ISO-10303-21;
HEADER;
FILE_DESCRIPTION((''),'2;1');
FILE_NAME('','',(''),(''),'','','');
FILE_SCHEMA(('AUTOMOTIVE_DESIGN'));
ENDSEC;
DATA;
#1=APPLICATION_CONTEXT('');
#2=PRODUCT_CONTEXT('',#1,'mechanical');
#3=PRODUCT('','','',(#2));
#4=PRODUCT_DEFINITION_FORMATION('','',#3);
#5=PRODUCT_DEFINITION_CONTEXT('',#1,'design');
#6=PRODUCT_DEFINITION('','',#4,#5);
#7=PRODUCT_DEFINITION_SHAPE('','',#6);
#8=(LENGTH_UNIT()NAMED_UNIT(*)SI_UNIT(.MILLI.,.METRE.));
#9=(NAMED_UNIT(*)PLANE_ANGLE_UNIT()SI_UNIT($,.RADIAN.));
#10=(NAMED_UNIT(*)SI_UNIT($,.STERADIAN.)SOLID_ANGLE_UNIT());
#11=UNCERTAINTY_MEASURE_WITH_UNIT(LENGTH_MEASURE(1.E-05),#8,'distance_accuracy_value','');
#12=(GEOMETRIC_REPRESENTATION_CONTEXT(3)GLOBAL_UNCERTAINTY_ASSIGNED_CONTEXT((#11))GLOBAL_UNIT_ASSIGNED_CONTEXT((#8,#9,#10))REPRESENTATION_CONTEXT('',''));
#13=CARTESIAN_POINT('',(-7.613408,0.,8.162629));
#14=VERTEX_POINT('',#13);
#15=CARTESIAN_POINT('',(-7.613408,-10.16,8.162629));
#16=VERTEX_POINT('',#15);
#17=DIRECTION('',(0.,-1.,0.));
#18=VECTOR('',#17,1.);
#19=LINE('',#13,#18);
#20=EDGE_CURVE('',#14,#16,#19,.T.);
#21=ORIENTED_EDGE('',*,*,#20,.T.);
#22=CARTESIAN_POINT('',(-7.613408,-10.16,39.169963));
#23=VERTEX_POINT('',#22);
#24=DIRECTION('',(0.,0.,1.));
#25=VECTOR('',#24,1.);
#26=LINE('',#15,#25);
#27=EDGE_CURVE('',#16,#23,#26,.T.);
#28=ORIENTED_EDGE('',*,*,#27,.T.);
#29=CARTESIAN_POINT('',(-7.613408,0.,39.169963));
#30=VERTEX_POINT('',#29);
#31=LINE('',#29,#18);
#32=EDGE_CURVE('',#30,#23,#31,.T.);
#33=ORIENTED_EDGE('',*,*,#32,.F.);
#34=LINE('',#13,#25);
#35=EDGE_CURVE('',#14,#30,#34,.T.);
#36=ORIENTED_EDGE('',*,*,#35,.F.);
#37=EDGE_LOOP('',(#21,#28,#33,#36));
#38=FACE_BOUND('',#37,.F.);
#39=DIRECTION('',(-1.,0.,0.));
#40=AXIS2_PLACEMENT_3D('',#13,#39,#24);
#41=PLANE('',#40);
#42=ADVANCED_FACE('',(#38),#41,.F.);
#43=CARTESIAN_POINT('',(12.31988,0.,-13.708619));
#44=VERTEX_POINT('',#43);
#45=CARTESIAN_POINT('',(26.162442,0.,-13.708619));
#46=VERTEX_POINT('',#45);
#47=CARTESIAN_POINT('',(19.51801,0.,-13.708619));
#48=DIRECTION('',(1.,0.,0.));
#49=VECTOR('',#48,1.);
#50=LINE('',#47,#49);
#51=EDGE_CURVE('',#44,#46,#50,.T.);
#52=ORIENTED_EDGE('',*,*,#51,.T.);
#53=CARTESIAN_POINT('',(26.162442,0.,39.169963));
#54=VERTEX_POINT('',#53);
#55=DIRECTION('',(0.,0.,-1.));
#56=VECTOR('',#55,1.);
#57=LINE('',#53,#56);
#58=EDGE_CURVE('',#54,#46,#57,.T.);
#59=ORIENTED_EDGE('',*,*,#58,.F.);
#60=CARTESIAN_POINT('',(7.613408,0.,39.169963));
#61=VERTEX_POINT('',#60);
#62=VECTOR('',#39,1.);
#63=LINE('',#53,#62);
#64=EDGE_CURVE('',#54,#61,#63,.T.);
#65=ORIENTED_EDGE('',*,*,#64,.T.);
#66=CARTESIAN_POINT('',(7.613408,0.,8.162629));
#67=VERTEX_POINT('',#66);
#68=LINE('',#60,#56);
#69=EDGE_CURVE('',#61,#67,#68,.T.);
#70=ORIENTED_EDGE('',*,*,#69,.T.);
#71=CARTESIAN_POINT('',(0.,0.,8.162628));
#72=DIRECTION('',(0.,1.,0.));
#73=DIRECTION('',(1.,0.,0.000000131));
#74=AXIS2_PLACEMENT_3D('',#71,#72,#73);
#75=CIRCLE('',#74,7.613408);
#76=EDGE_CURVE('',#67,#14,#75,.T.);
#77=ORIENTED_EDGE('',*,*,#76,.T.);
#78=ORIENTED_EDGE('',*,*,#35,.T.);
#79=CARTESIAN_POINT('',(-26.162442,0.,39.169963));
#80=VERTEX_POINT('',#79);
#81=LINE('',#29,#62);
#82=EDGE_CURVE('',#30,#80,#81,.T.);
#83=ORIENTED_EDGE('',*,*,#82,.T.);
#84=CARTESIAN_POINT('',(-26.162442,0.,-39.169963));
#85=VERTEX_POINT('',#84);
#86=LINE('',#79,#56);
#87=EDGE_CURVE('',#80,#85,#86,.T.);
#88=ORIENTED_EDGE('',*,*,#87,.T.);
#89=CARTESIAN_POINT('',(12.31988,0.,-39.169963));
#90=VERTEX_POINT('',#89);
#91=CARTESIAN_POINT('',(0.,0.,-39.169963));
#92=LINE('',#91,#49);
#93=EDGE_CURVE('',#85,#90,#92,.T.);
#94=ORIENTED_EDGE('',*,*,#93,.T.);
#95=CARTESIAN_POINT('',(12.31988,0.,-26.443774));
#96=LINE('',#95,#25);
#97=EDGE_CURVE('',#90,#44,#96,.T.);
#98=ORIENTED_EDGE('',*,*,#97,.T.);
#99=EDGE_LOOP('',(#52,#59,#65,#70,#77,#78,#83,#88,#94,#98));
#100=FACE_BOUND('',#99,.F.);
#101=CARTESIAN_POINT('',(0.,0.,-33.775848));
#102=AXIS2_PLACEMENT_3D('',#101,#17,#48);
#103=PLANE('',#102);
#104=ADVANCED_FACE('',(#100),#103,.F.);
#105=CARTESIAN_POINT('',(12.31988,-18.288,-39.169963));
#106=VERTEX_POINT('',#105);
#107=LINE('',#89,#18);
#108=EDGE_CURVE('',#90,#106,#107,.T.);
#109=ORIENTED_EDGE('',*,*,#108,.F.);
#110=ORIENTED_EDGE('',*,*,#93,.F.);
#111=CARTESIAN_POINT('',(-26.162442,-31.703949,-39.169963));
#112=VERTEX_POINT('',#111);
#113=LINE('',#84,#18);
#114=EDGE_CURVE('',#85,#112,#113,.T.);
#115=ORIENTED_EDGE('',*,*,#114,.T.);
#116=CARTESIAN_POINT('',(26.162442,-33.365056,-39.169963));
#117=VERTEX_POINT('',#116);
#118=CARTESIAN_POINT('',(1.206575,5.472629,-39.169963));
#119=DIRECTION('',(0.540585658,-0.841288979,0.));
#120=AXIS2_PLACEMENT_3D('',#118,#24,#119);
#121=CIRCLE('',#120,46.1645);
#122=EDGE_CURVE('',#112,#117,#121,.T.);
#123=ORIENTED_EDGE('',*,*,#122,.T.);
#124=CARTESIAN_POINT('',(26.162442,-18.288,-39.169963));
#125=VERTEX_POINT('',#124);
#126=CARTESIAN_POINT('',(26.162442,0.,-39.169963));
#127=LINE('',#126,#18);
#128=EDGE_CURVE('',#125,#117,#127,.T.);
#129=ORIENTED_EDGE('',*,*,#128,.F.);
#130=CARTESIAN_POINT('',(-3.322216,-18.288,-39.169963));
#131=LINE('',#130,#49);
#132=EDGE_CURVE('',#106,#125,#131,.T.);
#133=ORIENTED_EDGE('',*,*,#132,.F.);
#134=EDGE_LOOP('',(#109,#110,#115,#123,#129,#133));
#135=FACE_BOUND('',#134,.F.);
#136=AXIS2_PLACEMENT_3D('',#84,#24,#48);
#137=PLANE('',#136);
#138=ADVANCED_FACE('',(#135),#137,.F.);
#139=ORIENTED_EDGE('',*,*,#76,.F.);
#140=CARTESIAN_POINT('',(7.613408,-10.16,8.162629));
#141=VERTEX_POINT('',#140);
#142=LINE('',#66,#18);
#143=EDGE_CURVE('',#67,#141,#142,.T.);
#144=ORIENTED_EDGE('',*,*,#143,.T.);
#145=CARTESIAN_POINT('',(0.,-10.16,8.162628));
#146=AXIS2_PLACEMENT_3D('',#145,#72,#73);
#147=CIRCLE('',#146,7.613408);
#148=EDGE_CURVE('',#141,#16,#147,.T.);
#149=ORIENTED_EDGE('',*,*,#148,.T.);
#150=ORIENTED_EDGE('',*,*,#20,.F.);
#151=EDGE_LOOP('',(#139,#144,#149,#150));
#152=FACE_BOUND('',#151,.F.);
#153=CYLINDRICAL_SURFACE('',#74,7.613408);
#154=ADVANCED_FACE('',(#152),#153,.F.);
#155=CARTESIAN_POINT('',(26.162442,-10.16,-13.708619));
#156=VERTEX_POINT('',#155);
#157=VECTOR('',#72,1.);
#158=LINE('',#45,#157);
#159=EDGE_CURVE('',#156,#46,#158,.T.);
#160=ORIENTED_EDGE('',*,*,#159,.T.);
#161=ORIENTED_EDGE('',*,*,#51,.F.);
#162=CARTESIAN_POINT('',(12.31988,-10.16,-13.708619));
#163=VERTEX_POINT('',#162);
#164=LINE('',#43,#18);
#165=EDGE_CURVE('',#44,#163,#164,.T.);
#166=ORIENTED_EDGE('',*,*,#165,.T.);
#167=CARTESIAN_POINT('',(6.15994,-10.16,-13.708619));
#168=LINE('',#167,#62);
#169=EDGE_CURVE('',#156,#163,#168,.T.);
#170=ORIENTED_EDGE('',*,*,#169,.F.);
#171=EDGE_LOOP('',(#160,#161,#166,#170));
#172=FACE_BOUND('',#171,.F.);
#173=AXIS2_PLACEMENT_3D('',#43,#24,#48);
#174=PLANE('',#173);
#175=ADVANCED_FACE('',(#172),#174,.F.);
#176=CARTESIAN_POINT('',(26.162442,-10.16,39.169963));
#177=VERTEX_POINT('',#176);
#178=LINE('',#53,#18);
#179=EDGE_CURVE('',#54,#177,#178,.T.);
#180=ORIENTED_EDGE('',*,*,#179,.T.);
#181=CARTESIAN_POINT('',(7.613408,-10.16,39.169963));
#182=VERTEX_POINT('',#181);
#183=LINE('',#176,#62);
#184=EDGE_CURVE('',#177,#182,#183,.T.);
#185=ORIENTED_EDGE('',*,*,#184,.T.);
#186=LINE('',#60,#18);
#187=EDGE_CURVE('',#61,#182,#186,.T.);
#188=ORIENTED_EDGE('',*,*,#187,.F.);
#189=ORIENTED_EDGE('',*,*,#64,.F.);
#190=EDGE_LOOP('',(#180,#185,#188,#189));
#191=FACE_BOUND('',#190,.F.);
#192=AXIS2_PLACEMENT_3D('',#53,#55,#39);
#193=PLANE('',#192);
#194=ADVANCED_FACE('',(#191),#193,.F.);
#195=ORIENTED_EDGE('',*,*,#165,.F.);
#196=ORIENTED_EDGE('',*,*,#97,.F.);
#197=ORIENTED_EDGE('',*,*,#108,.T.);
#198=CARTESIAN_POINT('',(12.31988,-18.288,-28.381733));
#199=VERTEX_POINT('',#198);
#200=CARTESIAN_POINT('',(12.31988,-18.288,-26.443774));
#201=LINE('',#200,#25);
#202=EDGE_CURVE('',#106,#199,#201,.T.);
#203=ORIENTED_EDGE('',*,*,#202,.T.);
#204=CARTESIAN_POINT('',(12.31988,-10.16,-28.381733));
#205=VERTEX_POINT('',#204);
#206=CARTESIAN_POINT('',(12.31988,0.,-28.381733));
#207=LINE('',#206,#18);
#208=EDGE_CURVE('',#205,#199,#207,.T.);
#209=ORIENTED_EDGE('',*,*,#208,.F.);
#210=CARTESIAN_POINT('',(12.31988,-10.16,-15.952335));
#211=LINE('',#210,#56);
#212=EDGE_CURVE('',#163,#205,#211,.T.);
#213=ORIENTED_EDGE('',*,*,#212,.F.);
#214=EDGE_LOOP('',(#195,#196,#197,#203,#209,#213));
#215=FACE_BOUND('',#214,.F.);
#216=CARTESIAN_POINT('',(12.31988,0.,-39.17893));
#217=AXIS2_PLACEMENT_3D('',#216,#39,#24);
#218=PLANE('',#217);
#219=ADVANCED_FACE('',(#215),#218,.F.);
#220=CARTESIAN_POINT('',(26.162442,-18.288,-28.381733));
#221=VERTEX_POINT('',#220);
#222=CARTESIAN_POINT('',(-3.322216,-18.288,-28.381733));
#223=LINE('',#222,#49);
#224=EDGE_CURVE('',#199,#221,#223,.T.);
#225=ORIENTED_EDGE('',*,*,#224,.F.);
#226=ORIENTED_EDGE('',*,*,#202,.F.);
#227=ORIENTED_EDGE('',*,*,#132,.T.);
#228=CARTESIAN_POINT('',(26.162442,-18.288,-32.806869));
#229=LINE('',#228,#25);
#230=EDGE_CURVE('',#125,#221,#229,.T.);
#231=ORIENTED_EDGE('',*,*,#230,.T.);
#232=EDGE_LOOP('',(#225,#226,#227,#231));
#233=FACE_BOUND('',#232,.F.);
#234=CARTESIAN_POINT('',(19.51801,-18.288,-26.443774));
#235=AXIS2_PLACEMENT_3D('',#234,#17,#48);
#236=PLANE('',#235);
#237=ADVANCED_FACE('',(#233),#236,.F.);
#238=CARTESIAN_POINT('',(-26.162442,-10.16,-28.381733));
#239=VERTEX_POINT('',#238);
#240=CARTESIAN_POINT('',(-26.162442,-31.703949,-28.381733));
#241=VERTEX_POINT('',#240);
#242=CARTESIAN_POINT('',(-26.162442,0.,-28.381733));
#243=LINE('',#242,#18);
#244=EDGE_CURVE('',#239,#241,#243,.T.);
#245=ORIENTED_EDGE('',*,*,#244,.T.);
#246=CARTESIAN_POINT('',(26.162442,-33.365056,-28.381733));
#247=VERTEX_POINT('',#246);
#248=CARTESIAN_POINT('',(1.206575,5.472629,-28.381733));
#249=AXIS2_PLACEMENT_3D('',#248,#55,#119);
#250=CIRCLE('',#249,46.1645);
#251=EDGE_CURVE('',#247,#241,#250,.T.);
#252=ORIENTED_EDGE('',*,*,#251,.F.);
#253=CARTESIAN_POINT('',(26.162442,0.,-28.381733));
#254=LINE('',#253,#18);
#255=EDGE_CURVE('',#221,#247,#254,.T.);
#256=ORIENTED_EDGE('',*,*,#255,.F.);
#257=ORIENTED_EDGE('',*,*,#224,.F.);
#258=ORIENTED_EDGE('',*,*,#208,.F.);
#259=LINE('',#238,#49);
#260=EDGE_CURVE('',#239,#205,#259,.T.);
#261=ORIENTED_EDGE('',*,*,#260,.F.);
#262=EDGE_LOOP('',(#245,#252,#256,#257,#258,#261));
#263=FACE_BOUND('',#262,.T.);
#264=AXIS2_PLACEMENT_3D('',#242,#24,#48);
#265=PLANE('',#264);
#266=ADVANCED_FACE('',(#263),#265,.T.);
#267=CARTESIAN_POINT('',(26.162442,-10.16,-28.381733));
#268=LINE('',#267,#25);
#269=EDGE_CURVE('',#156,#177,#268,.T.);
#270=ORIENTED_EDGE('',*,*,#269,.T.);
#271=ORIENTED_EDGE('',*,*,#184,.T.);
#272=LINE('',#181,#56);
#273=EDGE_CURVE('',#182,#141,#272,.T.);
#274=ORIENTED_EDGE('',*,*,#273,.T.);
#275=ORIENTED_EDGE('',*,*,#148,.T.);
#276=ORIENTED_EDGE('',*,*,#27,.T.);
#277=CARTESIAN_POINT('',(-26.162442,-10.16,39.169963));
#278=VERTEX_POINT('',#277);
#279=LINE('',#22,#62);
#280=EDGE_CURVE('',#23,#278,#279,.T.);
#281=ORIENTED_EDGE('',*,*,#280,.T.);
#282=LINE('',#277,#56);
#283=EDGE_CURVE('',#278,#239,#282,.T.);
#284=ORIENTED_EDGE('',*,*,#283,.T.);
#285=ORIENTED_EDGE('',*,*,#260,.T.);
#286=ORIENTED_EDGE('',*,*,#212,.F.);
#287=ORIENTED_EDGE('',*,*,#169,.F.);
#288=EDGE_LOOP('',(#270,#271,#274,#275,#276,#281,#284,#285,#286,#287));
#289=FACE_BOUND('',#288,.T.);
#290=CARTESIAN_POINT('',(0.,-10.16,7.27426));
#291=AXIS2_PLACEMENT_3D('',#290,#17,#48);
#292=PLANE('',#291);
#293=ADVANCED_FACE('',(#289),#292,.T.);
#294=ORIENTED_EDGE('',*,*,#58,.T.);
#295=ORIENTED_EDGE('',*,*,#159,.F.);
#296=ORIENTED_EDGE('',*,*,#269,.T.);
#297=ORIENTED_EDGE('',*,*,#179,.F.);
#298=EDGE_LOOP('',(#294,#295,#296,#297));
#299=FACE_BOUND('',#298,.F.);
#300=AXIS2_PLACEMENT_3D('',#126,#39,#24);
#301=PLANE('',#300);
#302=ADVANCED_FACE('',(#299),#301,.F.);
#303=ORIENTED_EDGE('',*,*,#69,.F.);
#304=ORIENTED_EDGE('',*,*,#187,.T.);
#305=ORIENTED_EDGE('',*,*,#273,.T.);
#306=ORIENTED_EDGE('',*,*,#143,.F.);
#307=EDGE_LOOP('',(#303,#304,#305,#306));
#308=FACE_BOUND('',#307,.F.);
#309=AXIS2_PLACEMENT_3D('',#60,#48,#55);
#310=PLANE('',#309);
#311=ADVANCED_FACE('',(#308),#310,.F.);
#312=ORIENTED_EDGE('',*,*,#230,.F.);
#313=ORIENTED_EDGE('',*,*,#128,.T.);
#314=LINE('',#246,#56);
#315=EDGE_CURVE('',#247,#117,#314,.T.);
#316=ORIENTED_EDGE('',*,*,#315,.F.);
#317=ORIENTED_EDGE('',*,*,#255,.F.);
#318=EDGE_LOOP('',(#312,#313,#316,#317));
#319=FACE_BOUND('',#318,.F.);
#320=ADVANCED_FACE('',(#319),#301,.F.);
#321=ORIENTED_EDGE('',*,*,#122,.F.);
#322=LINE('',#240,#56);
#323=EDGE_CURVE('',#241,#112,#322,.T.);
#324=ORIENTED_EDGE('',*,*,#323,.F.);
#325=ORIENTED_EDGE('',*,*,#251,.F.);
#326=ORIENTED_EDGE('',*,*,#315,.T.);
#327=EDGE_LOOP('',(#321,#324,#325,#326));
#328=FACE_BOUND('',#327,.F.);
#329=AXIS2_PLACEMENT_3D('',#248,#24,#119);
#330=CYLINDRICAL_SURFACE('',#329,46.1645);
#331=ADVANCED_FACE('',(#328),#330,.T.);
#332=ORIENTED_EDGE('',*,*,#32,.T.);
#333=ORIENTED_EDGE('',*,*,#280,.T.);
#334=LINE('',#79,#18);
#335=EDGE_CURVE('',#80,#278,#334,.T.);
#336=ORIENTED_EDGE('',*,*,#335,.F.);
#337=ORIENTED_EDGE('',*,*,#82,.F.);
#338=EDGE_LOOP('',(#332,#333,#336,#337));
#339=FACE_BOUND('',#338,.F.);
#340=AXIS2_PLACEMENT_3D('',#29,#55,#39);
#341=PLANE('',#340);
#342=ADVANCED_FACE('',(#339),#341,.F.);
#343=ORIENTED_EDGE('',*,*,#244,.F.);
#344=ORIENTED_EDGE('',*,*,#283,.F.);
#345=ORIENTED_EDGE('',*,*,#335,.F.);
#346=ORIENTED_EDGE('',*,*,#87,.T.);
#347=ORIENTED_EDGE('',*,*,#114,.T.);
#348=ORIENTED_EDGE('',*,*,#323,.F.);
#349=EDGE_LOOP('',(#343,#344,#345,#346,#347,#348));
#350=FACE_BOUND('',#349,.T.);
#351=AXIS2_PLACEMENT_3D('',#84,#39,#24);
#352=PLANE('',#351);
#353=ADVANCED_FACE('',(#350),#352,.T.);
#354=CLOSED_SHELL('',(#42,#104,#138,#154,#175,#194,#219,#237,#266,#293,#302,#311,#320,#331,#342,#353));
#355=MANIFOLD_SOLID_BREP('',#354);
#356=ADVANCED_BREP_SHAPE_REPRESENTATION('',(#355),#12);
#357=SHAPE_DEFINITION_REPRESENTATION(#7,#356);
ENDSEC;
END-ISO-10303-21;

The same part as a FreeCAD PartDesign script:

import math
import FreeCAD as App
import Part
import Sketcher
from FreeCAD import Vector
Q = App.Units.Quantity

doc = App.newDocument("Part")
body = doc.addObject("PartDesign::Body", "Body")

sketch1 = doc.addObject("Sketcher::SketchObject", "Sketch")
body.addObject(sketch1)
sketch1.AttachmentSupport = (doc.XZ_Plane, [""])
sketch1.MapMode = "FlatFace"
sketch1.addGeometry([
    Part.LineSegment(Vector(26, -28, 0), Vector(26, 39, 0)),
    Part.LineSegment(Vector(26, 39, 0), Vector(8, 39, 0)),
    Part.LineSegment(Vector(8, 39, 0), Vector(8, 8, 0)),
    Part.ArcOfCircle(Part.Circle(Vector(0, 8, 0), Vector(0, 0, 1), 8), math.radians(180), math.radians(360)),
    Part.LineSegment(Vector(-8, 8, 0), Vector(-8, 39, 0)),
    Part.LineSegment(Vector(-8, 39, 0), Vector(-26, 39, 0)),
    Part.LineSegment(Vector(-26, 39, 0), Vector(-26, -28, 0)),
    Part.LineSegment(Vector(-26, -28, 0), Vector(26, -28, 0)),
], False)
sketch1.addConstraint([
    Sketcher.Constraint("Coincident", 0, 2, 1, 1),
    Sketcher.Constraint("Coincident", 1, 2, 2, 1),
    Sketcher.Constraint("Tangent", 2, 2, 3, 2),
    Sketcher.Constraint("Tangent", 3, 1, 4, 1),
    Sketcher.Constraint("Coincident", 4, 2, 5, 1),
    Sketcher.Constraint("Coincident", 5, 2, 6, 1),
    Sketcher.Constraint("Coincident", 6, 2, 7, 1),
    Sketcher.Constraint("Coincident", 7, 2, 0, 1),
    Sketcher.Constraint("Vertical", 0),
    Sketcher.Constraint("Horizontal", 1),
    Sketcher.Constraint("Vertical", 2),
    Sketcher.Constraint("Vertical", 4),
    Sketcher.Constraint("Horizontal", 5),
    Sketcher.Constraint("Vertical", 6),
    Sketcher.Constraint("Horizontal", 7),
    Sketcher.Constraint("Symmetric", 1, 2, 4, 2, -2),
    Sketcher.Constraint("Equal", 1, 5),
    Sketcher.Constraint("Radius", 3, Q("7.613408 mm")),
    Sketcher.Constraint("DistanceX", 1, 2, 1, 1, Q("18.549034 mm")),
    Sketcher.Constraint("DistanceY", 0, 1, 0, 2, Q("67.551696 mm")),
    Sketcher.Constraint("DistanceY", 2, 2, 2, 1, Q("31.007334 mm")),
    Sketcher.Constraint("DistanceY", -1, 1, 2, 2, Q("8.162629 mm")),
])
pad1 = doc.addObject("PartDesign::Pad", "Pad")
body.addObject(pad1)
pad1.Profile = sketch1
pad1.Length = Q("0.4 in")

sketch2 = doc.addObject("Sketcher::SketchObject", "Sketch001")
body.addObject(sketch2)
sketch2.AttachmentSupport = (doc.XZ_Plane, [""])
sketch2.MapMode = "FlatFace"
sketch2.addGeometry([
    Part.LineSegment(Vector(-26, -28, 0), Vector(-26, -39, 0)),
    Part.LineSegment(Vector(-26, -39, 0), Vector(26, -39, 0)),
    Part.LineSegment(Vector(26, -39, 0), Vector(26, -28, 0)),
    Part.LineSegment(Vector(26, -28, 0), Vector(-26, -28, 0)),
], False)
sketch2.addConstraint([
    Sketcher.Constraint("Coincident", 0, 2, 1, 1),
    Sketcher.Constraint("Coincident", 1, 2, 2, 1),
    Sketcher.Constraint("Coincident", 2, 2, 3, 1),
    Sketcher.Constraint("Coincident", 3, 2, 0, 1),
    Sketcher.Constraint("Vertical", 0),
    Sketcher.Constraint("Horizontal", 1),
    Sketcher.Constraint("Vertical", 2),
    Sketcher.Constraint("Horizontal", 3),
    Sketcher.Constraint("DistanceY", 0, 2, 0, 1, Q("10.78823 mm")),
    Sketcher.Constraint("DistanceX", 1, 1, 1, 2, Q("52.324884 mm")),
    Sketcher.Constraint("DistanceX", 0, 2, -1, 1, Q("26.162442 mm")),
    Sketcher.Constraint("DistanceY", 0, 2, -1, 1, Q("39.169963 mm")),
])
pad2 = doc.addObject("PartDesign::Pad", "Pad001")
body.addObject(pad2)
pad2.Profile = sketch2
pad2.Length = Q("1.78 in")

sketch3 = doc.addObject("Sketcher::SketchObject", "Sketch002")
body.addObject(sketch3)
sketch3.AttachmentSupport = (doc.XY_Plane, [""])
sketch3.MapMode = "FlatFace"
sketch3.AttachmentOffset = App.Placement(Vector(0, 0, -28.381733), App.Rotation())
sketch3.addGeometry([
    Part.ArcOfCircle(Part.Circle(Vector(1, 5, 0), Vector(0, 0, 1), 46), math.radians(-126), math.radians(-57)),
    Part.LineSegment(Vector(-26, -32, 0), Vector(-26, -45, 0)),
    Part.LineSegment(Vector(-26, -45, 0), Vector(26, -45, 0)),
    Part.LineSegment(Vector(26, -45, 0), Vector(26, -33, 0)),
], False)
sketch3.addConstraint([
    Sketcher.Constraint("Coincident", 0, 1, 1, 1),
    Sketcher.Constraint("Coincident", 1, 2, 2, 1),
    Sketcher.Constraint("Coincident", 2, 2, 3, 1),
    Sketcher.Constraint("Coincident", 3, 2, 0, 2),
    Sketcher.Constraint("Vertical", 1),
    Sketcher.Constraint("Horizontal", 2),
    Sketcher.Constraint("Vertical", 3),
    Sketcher.Constraint("Radius", 0, Q("1.8175 in")),
    Sketcher.Constraint("DistanceY", 1, 2, -1, 1, Q("1.78 in")),
    Sketcher.Constraint("DistanceY", 1, 2, 1, 1, Q("13.508051 mm")),
    Sketcher.Constraint("DistanceX", 2, 1, 2, 2, Q("52.324884 mm")),
    Sketcher.Constraint("DistanceY", 3, 1, 3, 2, Q("11.846944 mm")),
    Sketcher.Constraint("DistanceX", 0, 1, -1, 1, Q("26.162442 mm")),
])
pocket1 = doc.addObject("PartDesign::Pocket", "Pocket")
body.addObject(pocket1)
pocket1.Profile = sketch3
pocket1.Length = Q("1 in")

sketch4 = doc.addObject("Sketcher::SketchObject", "Sketch003")
body.addObject(sketch4)
sketch4.AttachmentSupport = (doc.XZ_Plane, [""])
sketch4.MapMode = "FlatFace"
sketch4.addGeometry([
    Part.LineSegment(Vector(12, -14, 0), Vector(12, -39, 0)),
    Part.LineSegment(Vector(12, -39, 0), Vector(27, -39, 0)),
    Part.LineSegment(Vector(27, -39, 0), Vector(27, -14, 0)),
    Part.LineSegment(Vector(27, -14, 0), Vector(12, -14, 0)),
], False)
sketch4.addConstraint([
    Sketcher.Constraint("Coincident", 0, 2, 1, 1),
    Sketcher.Constraint("Coincident", 1, 2, 2, 1),
    Sketcher.Constraint("Coincident", 2, 2, 3, 1),
    Sketcher.Constraint("Coincident", 3, 2, 0, 1),
    Sketcher.Constraint("Vertical", 0),
    Sketcher.Constraint("Horizontal", 1),
    Sketcher.Constraint("Vertical", 2),
    Sketcher.Constraint("Horizontal", 3),
    Sketcher.Constraint("DistanceX", 1, 1, 1, 2, Q("14.396261 mm")),
    Sketcher.Constraint("DistanceY", 0, 2, 0, 1, Q("25.470311 mm")),
    Sketcher.Constraint("DistanceX", -1, 1, 0, 2, Q("12.31988 mm")),
    Sketcher.Constraint("DistanceY", 0, 2, -1, 1, Q("39.17893 mm")),
])
pocket2 = doc.addObject("PartDesign::Pocket", "Pocket001")
body.addObject(pocket2)
pocket2.Profile = sketch4
pocket2.Length = Q("0.72 in")
pocket2.Reversed = True

doc.recompute()
